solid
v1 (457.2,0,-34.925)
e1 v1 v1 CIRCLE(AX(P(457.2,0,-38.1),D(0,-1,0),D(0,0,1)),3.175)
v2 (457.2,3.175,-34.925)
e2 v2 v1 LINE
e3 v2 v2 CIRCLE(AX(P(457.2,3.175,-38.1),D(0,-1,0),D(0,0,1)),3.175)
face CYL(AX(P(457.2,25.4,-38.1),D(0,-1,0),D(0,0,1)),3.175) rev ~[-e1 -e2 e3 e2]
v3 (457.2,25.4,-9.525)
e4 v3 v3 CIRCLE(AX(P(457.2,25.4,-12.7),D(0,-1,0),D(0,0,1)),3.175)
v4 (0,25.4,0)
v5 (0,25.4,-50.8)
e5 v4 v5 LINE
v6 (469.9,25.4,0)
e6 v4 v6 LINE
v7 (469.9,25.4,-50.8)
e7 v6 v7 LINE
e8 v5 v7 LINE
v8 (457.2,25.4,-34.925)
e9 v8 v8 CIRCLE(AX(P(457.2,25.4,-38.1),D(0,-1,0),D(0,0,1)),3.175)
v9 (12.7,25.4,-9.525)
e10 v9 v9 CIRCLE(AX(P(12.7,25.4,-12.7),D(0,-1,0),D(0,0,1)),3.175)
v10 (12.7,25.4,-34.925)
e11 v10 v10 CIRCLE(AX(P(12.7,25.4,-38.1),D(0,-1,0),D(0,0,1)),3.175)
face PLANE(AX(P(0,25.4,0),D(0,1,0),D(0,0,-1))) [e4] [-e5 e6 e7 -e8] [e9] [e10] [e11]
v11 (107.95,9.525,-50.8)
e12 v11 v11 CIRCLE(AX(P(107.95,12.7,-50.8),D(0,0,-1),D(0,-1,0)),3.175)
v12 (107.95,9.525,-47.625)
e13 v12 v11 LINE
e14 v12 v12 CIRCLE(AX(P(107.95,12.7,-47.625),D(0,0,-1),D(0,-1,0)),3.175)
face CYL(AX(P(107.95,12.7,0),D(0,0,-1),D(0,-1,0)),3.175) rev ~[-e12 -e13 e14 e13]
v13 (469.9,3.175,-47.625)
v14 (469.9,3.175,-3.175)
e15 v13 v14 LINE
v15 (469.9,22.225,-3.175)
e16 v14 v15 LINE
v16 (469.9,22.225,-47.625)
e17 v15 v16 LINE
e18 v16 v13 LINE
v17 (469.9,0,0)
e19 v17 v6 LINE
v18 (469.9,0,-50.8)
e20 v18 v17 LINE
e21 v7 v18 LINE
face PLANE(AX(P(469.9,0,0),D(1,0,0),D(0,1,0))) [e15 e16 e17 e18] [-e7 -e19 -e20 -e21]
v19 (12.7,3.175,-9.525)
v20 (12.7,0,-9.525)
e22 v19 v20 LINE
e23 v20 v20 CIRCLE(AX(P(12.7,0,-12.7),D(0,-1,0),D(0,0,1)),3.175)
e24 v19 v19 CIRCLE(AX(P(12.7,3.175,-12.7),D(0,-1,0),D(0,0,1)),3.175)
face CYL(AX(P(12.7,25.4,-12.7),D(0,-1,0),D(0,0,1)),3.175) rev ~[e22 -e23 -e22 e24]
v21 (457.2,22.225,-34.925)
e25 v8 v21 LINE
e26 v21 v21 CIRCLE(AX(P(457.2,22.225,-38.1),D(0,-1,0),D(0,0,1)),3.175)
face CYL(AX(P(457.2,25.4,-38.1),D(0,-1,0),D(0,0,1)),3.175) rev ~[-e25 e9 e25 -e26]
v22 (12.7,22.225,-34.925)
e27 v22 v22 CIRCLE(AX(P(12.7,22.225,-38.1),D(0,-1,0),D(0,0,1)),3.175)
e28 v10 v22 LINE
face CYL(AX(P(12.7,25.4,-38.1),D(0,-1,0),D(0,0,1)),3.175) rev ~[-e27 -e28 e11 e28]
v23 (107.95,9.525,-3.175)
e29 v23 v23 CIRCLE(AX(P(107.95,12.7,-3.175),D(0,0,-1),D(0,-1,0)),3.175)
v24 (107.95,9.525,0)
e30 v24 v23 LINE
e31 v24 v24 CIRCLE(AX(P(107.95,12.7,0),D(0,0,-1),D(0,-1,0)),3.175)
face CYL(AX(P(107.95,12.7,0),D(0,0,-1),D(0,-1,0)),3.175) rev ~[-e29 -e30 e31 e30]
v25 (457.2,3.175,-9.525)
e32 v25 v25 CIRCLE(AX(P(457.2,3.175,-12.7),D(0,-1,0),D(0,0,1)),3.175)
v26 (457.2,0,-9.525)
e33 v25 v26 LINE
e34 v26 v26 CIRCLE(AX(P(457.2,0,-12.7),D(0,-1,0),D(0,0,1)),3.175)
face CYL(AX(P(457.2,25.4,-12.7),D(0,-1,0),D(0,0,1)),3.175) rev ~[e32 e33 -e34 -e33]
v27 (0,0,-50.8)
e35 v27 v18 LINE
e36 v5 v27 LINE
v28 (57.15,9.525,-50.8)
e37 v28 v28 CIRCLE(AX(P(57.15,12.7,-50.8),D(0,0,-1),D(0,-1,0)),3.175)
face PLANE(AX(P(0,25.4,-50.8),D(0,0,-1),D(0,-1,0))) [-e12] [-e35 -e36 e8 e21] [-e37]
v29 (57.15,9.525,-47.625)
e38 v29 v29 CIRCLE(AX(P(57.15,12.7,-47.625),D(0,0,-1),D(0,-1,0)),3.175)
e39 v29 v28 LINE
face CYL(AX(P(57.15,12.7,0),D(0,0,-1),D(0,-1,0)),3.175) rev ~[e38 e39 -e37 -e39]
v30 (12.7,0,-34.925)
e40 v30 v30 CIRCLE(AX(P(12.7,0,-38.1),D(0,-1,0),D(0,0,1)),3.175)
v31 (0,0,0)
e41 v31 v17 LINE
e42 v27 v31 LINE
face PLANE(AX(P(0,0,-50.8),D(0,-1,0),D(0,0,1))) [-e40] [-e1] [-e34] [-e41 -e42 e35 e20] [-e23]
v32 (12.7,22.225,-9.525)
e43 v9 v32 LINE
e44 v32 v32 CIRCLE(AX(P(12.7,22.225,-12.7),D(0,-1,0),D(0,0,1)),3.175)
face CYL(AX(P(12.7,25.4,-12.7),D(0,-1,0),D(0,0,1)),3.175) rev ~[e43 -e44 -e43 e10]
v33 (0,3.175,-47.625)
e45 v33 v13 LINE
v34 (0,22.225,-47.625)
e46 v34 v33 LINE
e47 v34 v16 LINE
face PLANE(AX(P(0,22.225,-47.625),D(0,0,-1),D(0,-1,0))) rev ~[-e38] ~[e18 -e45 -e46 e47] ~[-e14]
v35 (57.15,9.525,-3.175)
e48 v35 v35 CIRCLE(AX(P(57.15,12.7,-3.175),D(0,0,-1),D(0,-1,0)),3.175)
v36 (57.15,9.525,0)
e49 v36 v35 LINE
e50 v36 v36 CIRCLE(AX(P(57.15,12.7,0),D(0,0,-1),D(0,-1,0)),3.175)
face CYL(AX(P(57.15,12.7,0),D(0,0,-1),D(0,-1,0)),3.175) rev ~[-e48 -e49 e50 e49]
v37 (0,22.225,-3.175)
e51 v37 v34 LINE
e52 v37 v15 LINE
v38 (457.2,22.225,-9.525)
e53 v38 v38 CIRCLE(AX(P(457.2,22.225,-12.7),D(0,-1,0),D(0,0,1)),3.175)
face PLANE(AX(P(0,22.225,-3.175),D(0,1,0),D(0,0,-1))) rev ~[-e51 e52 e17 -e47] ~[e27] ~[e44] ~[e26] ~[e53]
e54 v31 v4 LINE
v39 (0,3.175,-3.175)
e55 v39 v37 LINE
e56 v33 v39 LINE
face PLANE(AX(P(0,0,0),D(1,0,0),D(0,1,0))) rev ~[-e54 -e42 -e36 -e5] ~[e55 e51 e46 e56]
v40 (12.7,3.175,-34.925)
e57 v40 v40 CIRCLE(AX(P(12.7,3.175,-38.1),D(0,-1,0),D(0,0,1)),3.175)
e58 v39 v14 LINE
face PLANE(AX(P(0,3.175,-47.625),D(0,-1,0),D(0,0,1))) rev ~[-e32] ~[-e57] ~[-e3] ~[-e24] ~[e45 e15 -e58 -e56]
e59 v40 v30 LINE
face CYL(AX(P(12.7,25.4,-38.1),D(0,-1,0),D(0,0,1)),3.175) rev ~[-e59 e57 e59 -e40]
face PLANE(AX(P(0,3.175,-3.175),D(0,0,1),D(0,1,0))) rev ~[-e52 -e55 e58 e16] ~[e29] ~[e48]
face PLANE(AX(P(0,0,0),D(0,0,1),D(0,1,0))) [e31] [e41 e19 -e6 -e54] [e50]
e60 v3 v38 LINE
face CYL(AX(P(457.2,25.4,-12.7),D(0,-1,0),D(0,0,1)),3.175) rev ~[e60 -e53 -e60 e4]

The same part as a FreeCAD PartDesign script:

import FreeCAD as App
import Part
import Sketcher
from FreeCAD import Vector
Q = App.Units.Quantity

doc = App.newDocument("Part")
body = doc.addObject("PartDesign::Body", "Body")

# Sketch on YZ plane
sketch1 = body.newObject("Sketcher::SketchObject", "Sketch")
sketch1.AttachmentSupport = (doc.getObject("YZ_Plane"), [""])
sketch1.MapMode = "FlatFace"
sketch1.addGeometry(Part.LineSegment(Vector(25.4, 0, 0), Vector(0, 0, 0)), False)
sketch1.addGeometry(Part.LineSegment(Vector(0, 0, 0), Vector(0, -50.8, 0)), False)
sketch1.addGeometry(Part.LineSegment(Vector(0, -50.8, 0), Vector(25.4, -50.8, 0)), False)
sketch1.addGeometry(Part.LineSegment(Vector(25.4, -50.8, 0), Vector(25.4, 0, 0)), False)
sketch1.addGeometry(Part.LineSegment(Vector(3.175, -47.625, 0), Vector(3.175, -3.175, 0)), False)
sketch1.addGeometry(Part.LineSegment(Vector(3.175, -3.175, 0), Vector(22.225, -3.175, 0)), False)
sketch1.addGeometry(Part.LineSegment(Vector(22.225, -3.175, 0), Vector(22.225, -47.625, 0)), False)
sketch1.addGeometry(Part.LineSegment(Vector(22.225, -47.625, 0), Vector(3.175, -47.625, 0)), False)
sketch1.addConstraint(Sketcher.Constraint("Coincident", 0, 2, 1, 1))
sketch1.addConstraint(Sketcher.Constraint("Coincident", 1, 2, 2, 1))
sketch1.addConstraint(Sketcher.Constraint("Coincident", 2, 2, 3, 1))
sketch1.addConstraint(Sketcher.Constraint("Coincident", 3, 2, 0, 1))
sketch1.addConstraint(Sketcher.Constraint("Coincident", 4, 2, 5, 1))
sketch1.addConstraint(Sketcher.Constraint("Coincident", 5, 2, 6, 1))
sketch1.addConstraint(Sketcher.Constraint("Coincident", 6, 2, 7, 1))
sketch1.addConstraint(Sketcher.Constraint("Coincident", 7, 2, 4, 1))
sketch1.addConstraint(Sketcher.Constraint("Horizontal", 0))
sketch1.addConstraint(Sketcher.Constraint("Vertical", 1))
sketch1.addConstraint(Sketcher.Constraint("Horizontal", 2))
sketch1.addConstraint(Sketcher.Constraint("Vertical", 3))
sketch1.addConstraint(Sketcher.Constraint("Vertical", 4))
sketch1.addConstraint(Sketcher.Constraint("Horizontal", 5))
sketch1.addConstraint(Sketcher.Constraint("Vertical", 6))
sketch1.addConstraint(Sketcher.Constraint("Horizontal", 7))
sketch1.addConstraint(Sketcher.Constraint("Coincident", 0, 2, -1, 1))
sketch1.addConstraint(Sketcher.Constraint("DistanceX", 0, 2, 0, 1, Q("1 in")))
sketch1.addConstraint(Sketcher.Constraint("DistanceY", 1, 2, 1, 1, Q("2 in")))
sketch1.addConstraint(Sketcher.Constraint("DistanceX", 5, 1, 5, 2, Q("0.75 in")))
sketch1.addConstraint(Sketcher.Constraint("DistanceY", 4, 1, 4, 2, Q("1.75 in")))
sketch1.addConstraint(Sketcher.Constraint("DistanceX", -1, 1, 4, 2, Q("0.125 in")))
sketch1.addConstraint(Sketcher.Constraint("DistanceY", 4, 2, -1, 1, Q("0.125 in")))
pad1 = body.newObject("PartDesign::Pad", "Pad")
pad1.Profile = sketch1
pad1.Length = Q("18.5 in")

# Sketch on XZ plane
sketch2 = body.newObject("Sketcher::SketchObject", "Sketch001")
sketch2.AttachmentSupport = (doc.getObject("XZ_Plane"), [""])
sketch2.MapMode = "FlatFace"
sketch2.AttachmentOffset = App.Placement(Vector(0, 0, -1 * 25.4), App.Rotation())
sketch2.addGeometry(Part.Circle(Vector(12.7, -12.7, 0), Vector(0, 0, 1), 3.175), False)
sketch2.addGeometry(Part.Circle(Vector(12.7, -38.1, 0), Vector(0, 0, 1), 3.175), False)
sketch2.addGeometry(Part.Circle(Vector(457.2, -12.7, 0), Vector(0, 0, 1), 3.175), False)
sketch2.addGeometry(Part.Circle(Vector(457.2, -38.1, 0), Vector(0, 0, 1), 3.175), False)
sketch2.addConstraint(Sketcher.Constraint("Equal", 0, 1))
sketch2.addConstraint(Sketcher.Constraint("Equal", 1, 2))
sketch2.addConstraint(Sketcher.Constraint("Equal", 2, 3))
sketch2.addConstraint(Sketcher.Constraint("Horizontal", 0, 3, 2, 3))
sketch2.addConstraint(Sketcher.Constraint("Horizontal", 1, 3, 3, 3))
sketch2.addConstraint(Sketcher.Constraint("Vertical", 0, 3, 1, 3))
sketch2.addConstraint(Sketcher.Constraint("Vertical", 2, 3, 3, 3))
sketch2.addConstraint(Sketcher.Constraint("Diameter", 0, Q("0.25 in")))
sketch2.addConstraint(Sketcher.Constraint("DistanceX", -1, 1, 2, 3, Q("18 in")))
sketch2.addConstraint(Sketcher.Constraint("DistanceY", 1, 3, 0, 3, Q("1 in")))
sketch2.addConstraint(Sketcher.Constraint("DistanceX", -1, 1, 0, 3, Q("0.5 in")))
sketch2.addConstraint(Sketcher.Constraint("DistanceY", 0, 3, -1, 1, Q("0.5 in")))
doc.recompute()
hole = body.newObject("PartDesign::Hole", "Hole")
hole.Profile = sketch2
hole.ThreadType = "None"
hole.Diameter = Q("0.25 in")
hole.DepthType = "ThroughAll"
hole.Reversed = True

# Sketch on XY plane
sketch3 = body.newObject("Sketcher::SketchObject", "Sketch002")
sketch3.AttachmentSupport = (doc.getObject("XY_Plane"), [""])
sketch3.MapMode = "FlatFace"
sketch3.addGeometry(Part.Circle(Vector(57.15, 12.7, 0), Vector(0, 0, 1), 3.175), False)
sketch3.addGeometry(Part.Circle(Vector(107.95, 12.7, 0), Vector(0, 0, 1), 3.175), False)
sketch3.addConstraint(Sketcher.Constraint("Equal", 0, 1))
sketch3.addConstraint(Sketcher.Constraint("Horizontal", 0, 3, 1, 3))
sketch3.addConstraint(Sketcher.Constraint("Diameter", 0, Q("0.25 in")))
sketch3.addConstraint(Sketcher.Constraint("DistanceX", 0, 3, 1, 3, Q("2 in")))
sketch3.addConstraint(Sketcher.Constraint("DistanceY", -1, 1, 0, 3, Q("0.5 in")))
sketch3.addConstraint(Sketcher.Constraint("DistanceX", -1, 1, 0, 3, Q("2.25 in")))
doc.recompute()
hole2 = body.newObject("PartDesign::Hole", "Hole001")
hole2.Profile = sketch3
hole2.ThreadType = "None"
hole2.Diameter = Q("0.25 in")
hole2.DepthType = "ThroughAll"

doc.recompute()
